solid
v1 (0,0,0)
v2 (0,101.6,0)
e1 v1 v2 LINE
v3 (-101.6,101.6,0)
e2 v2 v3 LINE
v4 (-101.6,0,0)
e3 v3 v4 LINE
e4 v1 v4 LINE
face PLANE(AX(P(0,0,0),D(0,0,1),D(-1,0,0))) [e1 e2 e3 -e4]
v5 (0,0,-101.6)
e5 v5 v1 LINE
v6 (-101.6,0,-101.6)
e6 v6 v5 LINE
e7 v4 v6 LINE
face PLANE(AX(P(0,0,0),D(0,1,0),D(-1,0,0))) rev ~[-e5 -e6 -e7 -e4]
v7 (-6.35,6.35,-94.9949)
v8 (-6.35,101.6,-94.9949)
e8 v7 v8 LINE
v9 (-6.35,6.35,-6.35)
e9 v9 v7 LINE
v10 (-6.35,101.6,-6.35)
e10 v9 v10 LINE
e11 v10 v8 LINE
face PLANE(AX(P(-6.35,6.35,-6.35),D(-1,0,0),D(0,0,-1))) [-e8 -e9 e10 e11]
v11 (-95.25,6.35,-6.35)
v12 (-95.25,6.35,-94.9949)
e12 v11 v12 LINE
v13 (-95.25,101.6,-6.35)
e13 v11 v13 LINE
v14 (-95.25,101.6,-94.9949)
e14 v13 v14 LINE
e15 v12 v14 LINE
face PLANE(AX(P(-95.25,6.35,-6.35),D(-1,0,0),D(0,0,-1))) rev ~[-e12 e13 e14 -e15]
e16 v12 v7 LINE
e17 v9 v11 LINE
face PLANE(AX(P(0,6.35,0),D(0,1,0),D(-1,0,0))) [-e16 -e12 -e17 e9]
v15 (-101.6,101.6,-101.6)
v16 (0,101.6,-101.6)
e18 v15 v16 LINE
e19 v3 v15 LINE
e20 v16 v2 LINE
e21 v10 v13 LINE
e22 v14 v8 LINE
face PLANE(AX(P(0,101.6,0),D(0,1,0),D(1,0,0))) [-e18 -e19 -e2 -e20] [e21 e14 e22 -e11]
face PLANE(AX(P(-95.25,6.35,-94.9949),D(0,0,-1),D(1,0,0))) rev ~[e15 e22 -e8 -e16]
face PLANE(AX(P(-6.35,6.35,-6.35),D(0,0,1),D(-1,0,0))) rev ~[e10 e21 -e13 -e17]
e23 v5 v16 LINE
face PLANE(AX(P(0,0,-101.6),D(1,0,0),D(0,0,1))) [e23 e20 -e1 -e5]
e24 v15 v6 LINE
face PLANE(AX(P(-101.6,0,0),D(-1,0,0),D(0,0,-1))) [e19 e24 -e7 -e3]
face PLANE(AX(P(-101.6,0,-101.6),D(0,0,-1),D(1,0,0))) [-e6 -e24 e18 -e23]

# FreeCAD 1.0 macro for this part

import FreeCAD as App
import Part
import Sketcher

V = App.Vector
Q = App.Units.Quantity

doc = App.newDocument("Part")
body = doc.addObject("PartDesign::Body", "Body")

sketch1 = body.newObject("Sketcher::SketchObject", "Sketch")
sketch1.AttachmentSupport = (doc.getObject("XZ_Plane"), [""])
sketch1.MapMode = "FlatFace"
sketch1.addGeometry(Part.LineSegment(V(-101.6, 0, 0), V(0, 0, 0)), False)
sketch1.addGeometry(Part.LineSegment(V(0, 0, 0), V(0, -101.6, 0)), False)
sketch1.addGeometry(Part.LineSegment(V(0, -101.6, 0), V(-101.6, -101.6, 0)), False)
sketch1.addGeometry(Part.LineSegment(V(-101.6, -101.6, 0), V(-101.6, 0, 0)), False)
sketch1.addConstraint(Sketcher.Constraint("Coincident", 0, 2, 1, 1))
sketch1.addConstraint(Sketcher.Constraint("Coincident", 1, 2, 2, 1))
sketch1.addConstraint(Sketcher.Constraint("Coincident", 2, 2, 3, 1))
sketch1.addConstraint(Sketcher.Constraint("Coincident", 3, 2, 0, 1))
sketch1.addConstraint(Sketcher.Constraint("Horizontal", 0))
sketch1.addConstraint(Sketcher.Constraint("Vertical", 1))
sketch1.addConstraint(Sketcher.Constraint("Horizontal", 2))
sketch1.addConstraint(Sketcher.Constraint("Vertical", 3))
sketch1.addConstraint(Sketcher.Constraint("Coincident", 0, 2, -1, 1))
sketch1.addConstraint(Sketcher.Constraint("Equal", 2, 1))
sketch1.addConstraint(Sketcher.Constraint("DistanceX", 0, 1, 0, 2, Q("4 in")))
pad1 = body.newObject("PartDesign::Pad", "Pad")
pad1.Profile = sketch1
pad1.Length = Q("0.25 in")
pad1.Reversed = True

sketch2 = body.newObject("Sketcher::SketchObject", "Sketch001")
sketch2.AttachmentSupport = (doc.getObject("XZ_Plane"), [""])
sketch2.MapMode = "FlatFace"
sketch2.AttachmentOffset = App.Placement(V(0, 0, -0.25 * 25.4), App.Rotation())
sketch2.addGeometry(Part.LineSegment(V(-101.6, 0, 0), V(0, 0, 0)), False)
sketch2.addGeometry(Part.LineSegment(V(0, 0, 0), V(0, -101.6, 0)), False)
sketch2.addGeometry(Part.LineSegment(V(0, -101.6, 0), V(-101.6, -101.6, 0)), False)
sketch2.addGeometry(Part.LineSegment(V(-101.6, -101.6, 0), V(-101.6, 0, 0)), False)
sketch2.addGeometry(Part.LineSegment(V(-6.35, -94.9949, 0), V(-6.35, -6.35, 0)), False)
sketch2.addGeometry(Part.LineSegment(V(-6.35, -6.35, 0), V(-95.25, -6.35, 0)), False)
sketch2.addGeometry(Part.LineSegment(V(-95.25, -6.35, 0), V(-95.25, -94.9949, 0)), False)
sketch2.addGeometry(Part.LineSegment(V(-95.25, -94.9949, 0), V(-6.35, -94.9949, 0)), False)
sketch2.addConstraint(Sketcher.Constraint("Coincident", 0, 2, 1, 1))
sketch2.addConstraint(Sketcher.Constraint("Coincident", 1, 2, 2, 1))
sketch2.addConstraint(Sketcher.Constraint("Coincident", 2, 2, 3, 1))
sketch2.addConstraint(Sketcher.Constraint("Coincident", 3, 2, 0, 1))
sketch2.addConstraint(Sketcher.Constraint("Coincident", 4, 2, 5, 1))
sketch2.addConstraint(Sketcher.Constraint("Coincident", 5, 2, 6, 1))
sketch2.addConstraint(Sketcher.Constraint("Coincident", 6, 2, 7, 1))
sketch2.addConstraint(Sketcher.Constraint("Coincident", 7, 2, 4, 1))
sketch2.addConstraint(Sketcher.Constraint("Horizontal", 0))
sketch2.addConstraint(Sketcher.Constraint("Vertical", 1))
sketch2.addConstraint(Sketcher.Constraint("Horizontal", 2))
sketch2.addConstraint(Sketcher.Constraint("Vertical", 3))
sketch2.addConstraint(Sketcher.Constraint("Vertical", 4))
sketch2.addConstraint(Sketcher.Constraint("Horizontal", 5))
sketch2.addConstraint(Sketcher.Constraint("Vertical", 6))
sketch2.addConstraint(Sketcher.Constraint("Horizontal", 7))
sketch2.addConstraint(Sketcher.Constraint("Coincident", 0, 2, -1, 1))
sketch2.addConstraint(Sketcher.Constraint("Equal", 2, 1))
sketch2.addConstraint(Sketcher.Constraint("DistanceX", 0, 1, 0, 2, Q("4 in")))
sketch2.addConstraint(Sketcher.Constraint("DistanceX", 5, 2, 5, 1, Q("3.5 in")))
sketch2.addConstraint(Sketcher.Constraint("DistanceX", 4, 2, -1, 1, Q("0.25 in")))
sketch2.addConstraint(Sketcher.Constraint("DistanceY", 4, 2, -1, 1, Q("0.25 in")))
sketch2.addConstraint(Sketcher.Constraint("DistanceY", 4, 1, 4, 2, Q("88.645 mm")))
pad2 = body.newObject("PartDesign::Pad", "Pad001")
pad2.Profile = sketch2
pad2.Length = Q("3.75 in")
pad2.Reversed = True

doc.recompute()
